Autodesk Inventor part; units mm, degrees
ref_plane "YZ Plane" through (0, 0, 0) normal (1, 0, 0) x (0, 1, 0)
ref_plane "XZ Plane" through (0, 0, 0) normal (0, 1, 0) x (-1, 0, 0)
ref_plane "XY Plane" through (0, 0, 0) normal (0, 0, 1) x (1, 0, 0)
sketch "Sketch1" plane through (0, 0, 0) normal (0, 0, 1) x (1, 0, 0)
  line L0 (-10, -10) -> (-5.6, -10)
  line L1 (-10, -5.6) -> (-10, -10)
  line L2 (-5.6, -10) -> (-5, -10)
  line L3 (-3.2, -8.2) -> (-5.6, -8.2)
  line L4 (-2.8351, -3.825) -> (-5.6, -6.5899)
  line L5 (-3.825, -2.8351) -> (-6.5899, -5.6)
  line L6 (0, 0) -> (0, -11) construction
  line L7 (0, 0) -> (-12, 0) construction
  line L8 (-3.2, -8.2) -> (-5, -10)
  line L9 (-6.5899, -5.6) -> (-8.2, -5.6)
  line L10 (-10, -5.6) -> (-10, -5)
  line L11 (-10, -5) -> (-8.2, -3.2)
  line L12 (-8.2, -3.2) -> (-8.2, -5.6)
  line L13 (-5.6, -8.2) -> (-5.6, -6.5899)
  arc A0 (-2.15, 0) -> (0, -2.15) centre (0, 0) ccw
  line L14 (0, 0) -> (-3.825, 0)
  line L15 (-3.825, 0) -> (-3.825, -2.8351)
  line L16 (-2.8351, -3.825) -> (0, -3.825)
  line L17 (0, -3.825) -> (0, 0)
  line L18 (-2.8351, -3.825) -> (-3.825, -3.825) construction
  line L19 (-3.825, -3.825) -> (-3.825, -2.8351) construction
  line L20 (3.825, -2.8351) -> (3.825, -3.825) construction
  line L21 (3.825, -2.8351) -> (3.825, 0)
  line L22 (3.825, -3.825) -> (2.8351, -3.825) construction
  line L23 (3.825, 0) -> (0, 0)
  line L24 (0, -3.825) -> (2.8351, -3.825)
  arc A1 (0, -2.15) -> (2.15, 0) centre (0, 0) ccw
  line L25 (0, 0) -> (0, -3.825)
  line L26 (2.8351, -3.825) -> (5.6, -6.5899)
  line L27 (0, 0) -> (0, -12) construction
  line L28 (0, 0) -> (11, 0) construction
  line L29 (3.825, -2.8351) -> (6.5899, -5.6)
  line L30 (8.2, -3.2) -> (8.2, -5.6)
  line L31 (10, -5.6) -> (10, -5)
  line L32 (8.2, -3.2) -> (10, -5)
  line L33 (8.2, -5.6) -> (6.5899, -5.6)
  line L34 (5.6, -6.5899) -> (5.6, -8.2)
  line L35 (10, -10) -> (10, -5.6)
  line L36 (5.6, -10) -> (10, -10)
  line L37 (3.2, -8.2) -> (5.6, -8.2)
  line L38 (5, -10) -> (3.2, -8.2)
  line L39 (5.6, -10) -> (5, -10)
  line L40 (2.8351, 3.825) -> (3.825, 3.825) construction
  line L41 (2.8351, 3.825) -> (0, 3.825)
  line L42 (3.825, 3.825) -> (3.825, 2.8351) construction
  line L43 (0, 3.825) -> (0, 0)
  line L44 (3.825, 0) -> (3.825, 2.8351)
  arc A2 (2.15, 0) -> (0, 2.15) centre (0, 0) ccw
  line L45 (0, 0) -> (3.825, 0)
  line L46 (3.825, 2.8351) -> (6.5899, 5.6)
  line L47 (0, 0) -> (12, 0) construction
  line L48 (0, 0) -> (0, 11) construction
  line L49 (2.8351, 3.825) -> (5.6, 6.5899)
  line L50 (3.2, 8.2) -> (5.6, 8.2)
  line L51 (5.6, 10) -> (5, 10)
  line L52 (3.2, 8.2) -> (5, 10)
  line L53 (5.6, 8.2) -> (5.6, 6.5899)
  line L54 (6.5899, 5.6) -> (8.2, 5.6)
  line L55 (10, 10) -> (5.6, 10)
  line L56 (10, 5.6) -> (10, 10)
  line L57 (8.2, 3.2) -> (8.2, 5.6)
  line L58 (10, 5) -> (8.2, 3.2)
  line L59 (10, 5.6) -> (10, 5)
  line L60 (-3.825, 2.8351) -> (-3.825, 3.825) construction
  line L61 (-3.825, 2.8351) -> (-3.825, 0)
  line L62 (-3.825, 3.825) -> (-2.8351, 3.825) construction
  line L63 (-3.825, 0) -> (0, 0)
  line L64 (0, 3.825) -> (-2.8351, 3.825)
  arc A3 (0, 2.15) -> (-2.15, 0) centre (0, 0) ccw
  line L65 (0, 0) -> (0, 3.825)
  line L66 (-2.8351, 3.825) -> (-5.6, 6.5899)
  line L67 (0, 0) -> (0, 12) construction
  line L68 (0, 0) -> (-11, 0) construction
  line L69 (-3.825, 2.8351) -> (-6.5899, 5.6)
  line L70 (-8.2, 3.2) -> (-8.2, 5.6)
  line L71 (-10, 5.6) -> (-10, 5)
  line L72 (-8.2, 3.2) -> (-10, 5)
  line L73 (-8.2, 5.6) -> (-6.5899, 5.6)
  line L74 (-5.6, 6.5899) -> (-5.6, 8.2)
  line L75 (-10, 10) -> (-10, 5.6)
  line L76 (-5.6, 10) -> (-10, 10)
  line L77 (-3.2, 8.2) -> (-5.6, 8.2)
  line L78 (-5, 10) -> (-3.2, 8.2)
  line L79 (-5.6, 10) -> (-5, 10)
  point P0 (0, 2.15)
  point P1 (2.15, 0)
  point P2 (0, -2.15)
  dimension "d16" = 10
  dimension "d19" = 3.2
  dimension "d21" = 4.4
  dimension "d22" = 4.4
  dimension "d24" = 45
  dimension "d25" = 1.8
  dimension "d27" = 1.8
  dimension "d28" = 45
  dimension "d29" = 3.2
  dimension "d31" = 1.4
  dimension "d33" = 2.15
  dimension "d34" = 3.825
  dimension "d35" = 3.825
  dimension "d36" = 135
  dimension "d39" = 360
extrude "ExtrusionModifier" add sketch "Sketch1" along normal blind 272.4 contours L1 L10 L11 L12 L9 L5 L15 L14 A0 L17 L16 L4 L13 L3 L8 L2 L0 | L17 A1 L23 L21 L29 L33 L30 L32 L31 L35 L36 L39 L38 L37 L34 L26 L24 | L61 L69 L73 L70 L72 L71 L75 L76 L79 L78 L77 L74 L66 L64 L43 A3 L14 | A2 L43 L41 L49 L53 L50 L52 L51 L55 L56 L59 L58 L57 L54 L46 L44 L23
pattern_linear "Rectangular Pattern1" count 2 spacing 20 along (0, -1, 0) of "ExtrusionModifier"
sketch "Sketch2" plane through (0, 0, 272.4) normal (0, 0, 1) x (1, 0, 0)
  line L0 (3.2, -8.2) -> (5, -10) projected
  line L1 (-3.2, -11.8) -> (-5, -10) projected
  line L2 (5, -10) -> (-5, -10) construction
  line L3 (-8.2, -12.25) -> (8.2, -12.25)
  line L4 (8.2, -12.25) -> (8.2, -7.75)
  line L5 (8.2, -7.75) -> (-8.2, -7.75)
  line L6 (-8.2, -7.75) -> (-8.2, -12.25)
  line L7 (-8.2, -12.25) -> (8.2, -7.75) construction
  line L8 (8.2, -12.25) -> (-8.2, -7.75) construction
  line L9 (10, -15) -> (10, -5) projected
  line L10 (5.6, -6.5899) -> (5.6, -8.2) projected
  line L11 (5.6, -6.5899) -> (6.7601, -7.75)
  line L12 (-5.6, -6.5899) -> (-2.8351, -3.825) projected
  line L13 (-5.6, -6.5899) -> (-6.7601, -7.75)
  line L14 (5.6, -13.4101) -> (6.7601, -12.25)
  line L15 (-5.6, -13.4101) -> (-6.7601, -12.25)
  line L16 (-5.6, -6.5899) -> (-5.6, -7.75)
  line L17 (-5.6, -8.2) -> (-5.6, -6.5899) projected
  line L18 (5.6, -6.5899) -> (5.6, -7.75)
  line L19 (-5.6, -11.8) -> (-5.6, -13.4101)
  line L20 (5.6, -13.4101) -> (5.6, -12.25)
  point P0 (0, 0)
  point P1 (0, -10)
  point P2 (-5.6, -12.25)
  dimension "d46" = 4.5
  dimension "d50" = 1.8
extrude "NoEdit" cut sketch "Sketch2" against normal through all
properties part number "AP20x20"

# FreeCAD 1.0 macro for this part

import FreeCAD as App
import Part
import Sketcher
Q = App.Units.Quantity

doc = App.newDocument("Part")
body = doc.addObject("PartDesign::Body", "Body")

# Sketch on XY plane
sketch1 = body.newObject("Sketcher::SketchObject", "Sketch")
sketch1.AttachmentSupport = (doc.getObject("XY_Plane"), [""])
sketch1.MapMode = "FlatFace"
sketch1.addGeometry(Part.LineSegment(App.Vector(-10, -10, 0), App.Vector(-5, -10, 0)), False)
sketch1.addGeometry(Part.LineSegment(App.Vector(-5, -10, 0), App.Vector(-3.2, -8.2, 0)), False)
sketch1.addGeometry(Part.LineSegment(App.Vector(-3.2, -8.2, 0), App.Vector(-5.6, -8.2, 0)), False)
sketch1.addGeometry(Part.LineSegment(App.Vector(-5.6, -8.2, 0), App.Vector(-5.6, -6.6, 0)), False)
sketch1.addGeometry(Part.LineSegment(App.Vector(-5.6, -6.6, 0), App.Vector(-2.8, -3.8, 0)), False)
sketch1.addGeometry(Part.LineSegment(App.Vector(-2.8, -3.8, 0), App.Vector(2.8, -3.8, 0)), False)
sketch1.addGeometry(Part.LineSegment(App.Vector(2.8, -3.8, 0), App.Vector(5.6, -6.6, 0)), False)
sketch1.addGeometry(Part.LineSegment(App.Vector(5.6, -6.6, 0), App.Vector(5.6, -8.2, 0)), False)
sketch1.addGeometry(Part.LineSegment(App.Vector(5.6, -8.2, 0), App.Vector(3.2, -8.2, 0)), False)
sketch1.addGeometry(Part.LineSegment(App.Vector(3.2, -8.2, 0), App.Vector(5, -10, 0)), False)
sketch1.addGeometry(Part.LineSegment(App.Vector(5, -10, 0), App.Vector(10, -10, 0)), False)
sketch1.addGeometry(Part.LineSegment(App.Vector(10, -10, 0), App.Vector(10, -5, 0)), False)
sketch1.addGeometry(Part.LineSegment(App.Vector(10, -5, 0), App.Vector(8.2, -3.2, 0)), False)
sketch1.addGeometry(Part.LineSegment(App.Vector(8.2, -3.2, 0), App.Vector(8.2, -5.6, 0)), False)
sketch1.addGeometry(Part.LineSegment(App.Vector(8.2, -5.6, 0), App.Vector(6.6, -5.6, 0)), False)
sketch1.addGeometry(Part.LineSegment(App.Vector(6.6, -5.6, 0), App.Vector(3.8, -2.8, 0)), False)
sketch1.addGeometry(Part.LineSegment(App.Vector(3.8, -2.8, 0), App.Vector(3.8, 2.8, 0)), False)
sketch1.addGeometry(Part.LineSegment(App.Vector(3.8, 2.8, 0), App.Vector(6.6, 5.6, 0)), False)
sketch1.addGeometry(Part.LineSegment(App.Vector(6.6, 5.6, 0), App.Vector(8.2, 5.6, 0)), False)
sketch1.addGeometry(Part.LineSegment(App.Vector(8.2, 5.6, 0), App.Vector(8.2, 3.2, 0)), False)
sketch1.addGeometry(Part.LineSegment(App.Vector(8.2, 3.2, 0), App.Vector(10, 5, 0)), False)
sketch1.addGeometry(Part.LineSegment(App.Vector(10, 5, 0), App.Vector(10, 10, 0)), False)
sketch1.addGeometry(Part.LineSegment(App.Vector(10, 10, 0), App.Vector(5, 10, 0)), False)
sketch1.addGeometry(Part.LineSegment(App.Vector(5, 10, 0), App.Vector(3.2, 8.2, 0)), False)
sketch1.addGeometry(Part.LineSegment(App.Vector(3.2, 8.2, 0), App.Vector(5.6, 8.2, 0)), False)
sketch1.addGeometry(Part.LineSegment(App.Vector(5.6, 8.2, 0), App.Vector(5.6, 6.6, 0)), False)
sketch1.addGeometry(Part.LineSegment(App.Vector(5.6, 6.6, 0), App.Vector(2.8, 3.8, 0)), False)
sketch1.addGeometry(Part.LineSegment(App.Vector(2.8, 3.8, 0), App.Vector(-2.8, 3.8, 0)), False)
sketch1.addGeometry(Part.LineSegment(App.Vector(-2.8, 3.8, 0), App.Vector(-5.6, 6.6, 0)), False)
sketch1.addGeometry(Part.LineSegment(App.Vector(-5.6, 6.6, 0), App.Vector(-5.6, 8.2, 0)), False)
sketch1.addGeometry(Part.LineSegment(App.Vector(-5.6, 8.2, 0), App.Vector(-3.2, 8.2, 0)), False)
sketch1.addGeometry(Part.LineSegment(App.Vector(-3.2, 8.2, 0), App.Vector(-5, 10, 0)), False)
sketch1.addGeometry(Part.LineSegment(App.Vector(-5, 10, 0), App.Vector(-10, 10, 0)), False)
sketch1.addGeometry(Part.LineSegment(App.Vector(-10, 10, 0), App.Vector(-10, 5, 0)), False)
sketch1.addGeometry(Part.LineSegment(App.Vector(-10, 5, 0), App.Vector(-8.2, 3.2, 0)), False)
sketch1.addGeometry(Part.LineSegment(App.Vector(-8.2, 3.2, 0), App.Vector(-8.2, 5.6, 0)), False)
sketch1.addGeometry(Part.LineSegment(App.Vector(-8.2, 5.6, 0), App.Vector(-6.6, 5.6, 0)), False)
sketch1.addGeometry(Part.LineSegment(App.Vector(-6.6, 5.6, 0), App.Vector(-3.8, 2.8, 0)), False)
sketch1.addGeometry(Part.LineSegment(App.Vector(-3.8, 2.8, 0), App.Vector(-3.8, -2.8, 0)), False)
sketch1.addGeometry(Part.LineSegment(App.Vector(-3.8, -2.8, 0), App.Vector(-6.6, -5.6, 0)), False)
sketch1.addGeometry(Part.LineSegment(App.Vector(-6.6, -5.6, 0), App.Vector(-8.2, -5.6, 0)), False)
sketch1.addGeometry(Part.LineSegment(App.Vector(-8.2, -5.6, 0), App.Vector(-8.2, -3.2, 0)), False)
sketch1.addGeometry(Part.LineSegment(App.Vector(-8.2, -3.2, 0), App.Vector(-10, -5, 0)), False)
sketch1.addGeometry(Part.LineSegment(App.Vector(-10, -5, 0), App.Vector(-10, -10, 0)), False)
sketch1.addGeometry(Part.Circle(App.Vector(0, 0, 0), App.Vector(0, 0, 1), 2.1), False)
sketch1.addConstraint(Sketcher.Constraint("Coincident", 0, 2, 1, 1))
sketch1.addConstraint(Sketcher.Constraint("Coincident", 1, 2, 2, 1))
sketch1.addConstraint(Sketcher.Constraint("Coincident", 2, 2, 3, 1))
sketch1.addConstraint(Sketcher.Constraint("Coincident", 3, 2, 4, 1))
sketch1.addConstraint(Sketcher.Constraint("Coincident", 4, 2, 5, 1))
sketch1.addConstraint(Sketcher.Constraint("Coincident", 5, 2, 6, 1))
sketch1.addConstraint(Sketcher.Constraint("Coincident", 6, 2, 7, 1))
sketch1.addConstraint(Sketcher.Constraint("Coincident", 7, 2, 8, 1))
sketch1.addConstraint(Sketcher.Constraint("Coincident", 8, 2, 9, 1))
sketch1.addConstraint(Sketcher.Constraint("Coincident", 9, 2, 10, 1))
sketch1.addConstraint(Sketcher.Constraint("Coincident", 10, 2, 11, 1))
sketch1.addConstraint(Sketcher.Constraint("Coincident", 11, 2, 12, 1))
sketch1.addConstraint(Sketcher.Constraint("Coincident", 12, 2, 13, 1))
sketch1.addConstraint(Sketcher.Constraint("Coincident", 13, 2, 14, 1))
sketch1.addConstraint(Sketcher.Constraint("Coincident", 14, 2, 15, 1))
sketch1.addConstraint(Sketcher.Constraint("Coincident", 15, 2, 16, 1))
sketch1.addConstraint(Sketcher.Constraint("Coincident", 16, 2, 17, 1))
sketch1.addConstraint(Sketcher.Constraint("Coincident", 17, 2, 18, 1))
sketch1.addConstraint(Sketcher.Constraint("Coincident", 18, 2, 19, 1))
sketch1.addConstraint(Sketcher.Constraint("Coincident", 19, 2, 20, 1))
sketch1.addConstraint(Sketcher.Constraint("Coincident", 20, 2, 21, 1))
sketch1.addConstraint(Sketcher.Constraint("Coincident", 21, 2, 22, 1))
sketch1.addConstraint(Sketcher.Constraint("Coincident", 22, 2, 23, 1))
sketch1.addConstraint(Sketcher.Constraint("Coincident", 23, 2, 24, 1))
sketch1.addConstraint(Sketcher.Constraint("Coincident", 24, 2, 25, 1))
sketch1.addConstraint(Sketcher.Constraint("Coincident", 25, 2, 26, 1))
sketch1.addConstraint(Sketcher.Constraint("Coincident", 26, 2, 27, 1))
sketch1.addConstraint(Sketcher.Constraint("Coincident", 27, 2, 28, 1))
sketch1.addConstraint(Sketcher.Constraint("Coincident", 28, 2, 29, 1))
sketch1.addConstraint(Sketcher.Constraint("Coincident", 29, 2, 30, 1))
sketch1.addConstraint(Sketcher.Constraint("Coincident", 30, 2, 31, 1))
sketch1.addConstraint(Sketcher.Constraint("Coincident", 31, 2, 32, 1))
sketch1.addConstraint(Sketcher.Constraint("Coincident", 32, 2, 33, 1))
sketch1.addConstraint(Sketcher.Constraint("Coincident", 33, 2, 34, 1))
sketch1.addConstraint(Sketcher.Constraint("Coincident", 34, 2, 35, 1))
sketch1.addConstraint(Sketcher.Constraint("Coincident", 35, 2, 36, 1))
sketch1.addConstraint(Sketcher.Constraint("Coincident", 36, 2, 37, 1))
sketch1.addConstraint(Sketcher.Constraint("Coincident", 37, 2, 38, 1))
sketch1.addConstraint(Sketcher.Constraint("Coincident", 38, 2, 39, 1))
sketch1.addConstraint(Sketcher.Constraint("Coincident", 39, 2, 40, 1))
sketch1.addConstraint(Sketcher.Constraint("Coincident", 40, 2, 41, 1))
sketch1.addConstraint(Sketcher.Constraint("Coincident", 41, 2, 42, 1))
sketch1.addConstraint(Sketcher.Constraint("Coincident", 42, 2, 43, 1))
sketch1.addConstraint(Sketcher.Constraint("Coincident", 43, 2, 0, 1))
sketch1.addConstraint(Sketcher.Constraint("Horizontal", 0))
sketch1.addConstraint(Sketcher.Constraint("Horizontal", 2))
sketch1.addConstraint(Sketcher.Constraint("Vertical", 3))
sketch1.addConstraint(Sketcher.Constraint("Horizontal", 5))
sketch1.addConstraint(Sketcher.Constraint("Vertical", 7))
sketch1.addConstraint(Sketcher.Constraint("Horizontal", 8))
sketch1.addConstraint(Sketcher.Constraint("Horizontal", 10))
sketch1.addConstraint(Sketcher.Constraint("Vertical", 11))
sketch1.addConstraint(Sketcher.Constraint("Vertical", 13))
sketch1.addConstraint(Sketcher.Constraint("Horizontal", 14))
sketch1.addConstraint(Sketcher.Constraint("Vertical", 16))
sketch1.addConstraint(Sketcher.Constraint("Horizontal", 18))
sketch1.addConstraint(Sketcher.Constraint("Vertical", 19))
sketch1.addConstraint(Sketcher.Constraint("Vertical", 21))
sketch1.addConstraint(Sketcher.Constraint("Horizontal", 22))
sketch1.addConstraint(Sketcher.Constraint("Horizontal", 24))
sketch1.addConstraint(Sketcher.Constraint("Vertical", 25))
sketch1.addConstraint(Sketcher.Constraint("Horizontal", 27))
sketch1.addConstraint(Sketcher.Constraint("Vertical", 29))
sketch1.addConstraint(Sketcher.Constraint("Horizontal", 30))
sketch1.addConstraint(Sketcher.Constraint("Horizontal", 32))
sketch1.addConstraint(Sketcher.Constraint("Vertical", 33))
sketch1.addConstraint(Sketcher.Constraint("Vertical", 35))
sketch1.addConstraint(Sketcher.Constraint("Horizontal", 36))
sketch1.addConstraint(Sketcher.Constraint("Vertical", 38))
sketch1.addConstraint(Sketcher.Constraint("Horizontal", 40))
sketch1.addConstraint(Sketcher.Constraint("Vertical", 41))
sketch1.addConstraint(Sketcher.Constraint("Vertical", 43))
sketch1.addConstraint(Sketcher.Constraint("Coincident", 44, 3, -1, 1))
sketch1.addConstraint(Sketcher.Constraint("Symmetric", 0, 2, 22, 2, -1, 1))
sketch1.addConstraint(Sketcher.Constraint("Symmetric", 1, 2, 23, 2, -1, 1))
sketch1.addConstraint(Sketcher.Constraint("Symmetric", 3, 2, 25, 2, -1, 1))
sketch1.addConstraint(Sketcher.Constraint("Symmetric", 4, 2, 26, 2, -1, 1))
sketch1.addConstraint(Sketcher.Constraint("Symmetric", 6, 2, 28, 2, -1, 1))
sketch1.addConstraint(Sketcher.Constraint("Symmetric", 8, 2, 30, 2, -1, 1))
sketch1.addConstraint(Sketcher.Constraint("Symmetric", 9, 2, 31, 2, -1, 1))
sketch1.addConstraint(Sketcher.Constraint("Symmetric", 11, 2, 33, 2, -1, 1))
sketch1.addConstraint(Sketcher.Constraint("Symmetric", 12, 2, 34, 2, -1, 1))
sketch1.addConstraint(Sketcher.Constraint("Symmetric", 14, 2, 36, 2, -1, 1))
sketch1.addConstraint(Sketcher.Constraint("Symmetric", 15, 2, 37, 2, -1, 1))
sketch1.addConstraint(Sketcher.Constraint("Symmetric", 17, 2, 39, 2, -1, 1))
sketch1.addConstraint(Sketcher.Constraint("Symmetric", 19, 2, 41, 2, -1, 1))
sketch1.addConstraint(Sketcher.Constraint("Symmetric", 20, 2, 42, 2, -1, 1))
sketch1.addConstraint(Sketcher.Constraint("Symmetric", 3, 2, 6, 2, -2))
sketch1.addConstraint(Sketcher.Constraint("Symmetric", 1, 2, 8, 2, -2))
sketch1.addConstraint(Sketcher.Constraint("Symmetric", 0, 2, 9, 2, -2))
sketch1.addConstraint(Sketcher.Constraint("Symmetric", 20, 2, 33, 2, -2))
sketch1.addConstraint(Sketcher.Constraint("Symmetric", 19, 2, 34, 2, -2))
sketch1.addConstraint(Sketcher.Constraint("Symmetric", 17, 2, 36, 2, -2))
sketch1.addConstraint(Sketcher.Constraint("Parallel", 1, 4))
sketch1.addConstraint(Sketcher.Constraint("Perpendicular", 4, 6))
sketch1.addConstraint(Sketcher.Constraint("Parallel", 6, 9))
sketch1.addConstraint(Sketcher.Constraint("Parallel", 9, 12))
sketch1.addConstraint(Sketcher.Constraint("Parallel", 12, 15))
sketch1.addConstraint(Sketcher.Constraint("Perpendicular", 15, 17))
sketch1.addConstraint(Sketcher.Constraint("Perpendicular", 26, 28))
sketch1.addConstraint(Sketcher.Constraint("Perpendicular", 37, 39))
sketch1.addConstraint(Sketcher.Constraint("Equal", 40, 3))
sketch1.addConstraint(Sketcher.Constraint("Equal", 32, 11))
sketch1.addConstraint(Sketcher.Constraint("Equal", 30, 13))
sketch1.addConstraint(Sketcher.Constraint("Equal", 27, 16))
sketch1.addConstraint(Sketcher.Constraint("Equal", 9, 12))
sketch1.addConstraint(Sketcher.Constraint("Equal", 6, 15))
sketch1.addConstraint(Sketcher.Constraint("Diameter", 44, Q("4.3 mm")))
sketch1.addConstraint(Sketcher.Constraint("DistanceY", 0, 2, -1, 1, Q("10 mm")))
sketch1.addConstraint(Sketcher.Constraint("DistanceX", 1, 2, -1, 1, Q("3.2 mm")))
sketch1.addConstraint(Sketcher.Constraint("DistanceX", 0, 2, 1, 2, Q("1.8 mm")))
sketch1.addConstraint(Sketcher.Constraint("DistanceX", 7, 2, 10, 2, Q("4.4 mm")))
sketch1.addConstraint(Sketcher.Constraint("DistanceY", 4, 2, -1, 1, Q("3.825 mm")))
sketch1.addConstraint(Sketcher.Constraint("DistanceX", 14, 2, 14, 1, Q("1.61 mm")))
pad1 = body.newObject("PartDesign::Pad", "Pad")
pad1.Profile = sketch1
pad1.Length = 272.4
doc.recompute()

linearpattern = body.newObject("PartDesign::LinearPattern", "LinearPattern")
linearpattern.Originals = [pad1]
linearpattern.Direction = (doc.getObject("Y_Axis"), [""])
linearpattern.Mode = "offset"
linearpattern.Offset = 20
linearpattern.Occurrences = 2
linearpattern.Reversed = True
body.Tip = linearpattern

# Sketch on XY plane
sketch2 = body.newObject("Sketcher::SketchObject", "Sketch001")
sketch2.AttachmentSupport = (doc.getObject("XY_Plane"), [""])
sketch2.MapMode = "FlatFace"
sketch2.AttachmentOffset = App.Placement(App.Vector(0, 0, 272.4), App.Rotation())
sketch2.addGeometry(Part.LineSegment(App.Vector(-8.2, -7.8, 0), App.Vector(-8.2, -12.2, 0)), False)
sketch2.addGeometry(Part.LineSegment(App.Vector(-8.2, -12.2, 0), App.Vector(-6.8, -12.2, 0)), False)
sketch2.addGeometry(Part.LineSegment(App.Vector(-6.8, -12.2, 0), App.Vector(-5.6, -13.4, 0)), False)
sketch2.addGeometry(Part.LineSegment(App.Vector(-5.6, -13.4, 0), App.Vector(-5.6, -12.2, 0)), False)
sketch2.addGeometry(Part.LineSegment(App.Vector(-5.6, -12.2, 0), App.Vector(5.6, -12.2, 0)), False)
sketch2.addGeometry(Part.LineSegment(App.Vector(5.6, -12.2, 0), App.Vector(5.6, -13.4, 0)), False)
sketch2.addGeometry(Part.LineSegment(App.Vector(5.6, -13.4, 0), App.Vector(6.8, -12.2, 0)), False)
sketch2.addGeometry(Part.LineSegment(App.Vector(6.8, -12.2, 0), App.Vector(8.2, -12.2, 0)), False)
sketch2.addGeometry(Part.LineSegment(App.Vector(8.2, -12.2, 0), App.Vector(8.2, -7.8, 0)), False)
sketch2.addGeometry(Part.LineSegment(App.Vector(8.2, -7.8, 0), App.Vector(6.8, -7.8, 0)), False)
sketch2.addGeometry(Part.LineSegment(App.Vector(6.8, -7.8, 0), App.Vector(5.6, -6.6, 0)), False)
sketch2.addGeometry(Part.LineSegment(App.Vector(5.6, -6.6, 0), App.Vector(5.6, -7.8, 0)), False)
sketch2.addGeometry(Part.LineSegment(App.Vector(5.6, -7.8, 0), App.Vector(-5.6, -7.8, 0)), False)
sketch2.addGeometry(Part.LineSegment(App.Vector(-5.6, -7.8, 0), App.Vector(-5.6, -6.6, 0)), False)
sketch2.addGeometry(Part.LineSegment(App.Vector(-5.6, -6.6, 0), App.Vector(-6.8, -7.8, 0)), False)
sketch2.addGeometry(Part.LineSegment(App.Vector(-6.8, -7.8, 0), App.Vector(-8.2, -7.8, 0)), False)
sketch2.addConstraint(Sketcher.Constraint("Coincident", 0, 2, 1, 1))
sketch2.addConstraint(Sketcher.Constraint("Coincident", 1, 2, 2, 1))
sketch2.addConstraint(Sketcher.Constraint("Coincident", 2, 2, 3, 1))
sketch2.addConstraint(Sketcher.Constraint("Coincident", 3, 2, 4, 1))
sketch2.addConstraint(Sketcher.Constraint("Coincident", 4, 2, 5, 1))
sketch2.addConstraint(Sketcher.Constraint("Coincident", 5, 2, 6, 1))
sketch2.addConstraint(Sketcher.Constraint("Coincident", 6, 2, 7, 1))
sketch2.addConstraint(Sketcher.Constraint("Coincident", 7, 2, 8, 1))
sketch2.addConstraint(Sketcher.Constraint("Coincident", 8, 2, 9, 1))
sketch2.addConstraint(Sketcher.Constraint("Coincident", 9, 2, 10, 1))
sketch2.addConstraint(Sketcher.Constraint("Coincident", 10, 2, 11, 1))
sketch2.addConstraint(Sketcher.Constraint("Coincident", 11, 2, 12, 1))
sketch2.addConstraint(Sketcher.Constraint("Coincident", 12, 2, 13, 1))
sketch2.addConstraint(Sketcher.Constraint("Coincident", 13, 2, 14, 1))
sketch2.addConstraint(Sketcher.Constraint("Coincident", 14, 2, 15, 1))
sketch2.addConstraint(Sketcher.Constraint("Coincident", 15, 2, 0, 1))
sketch2.addConstraint(Sketcher.Constraint("Vertical", 0))
sketch2.addConstraint(Sketcher.Constraint("Horizontal", 1))
sketch2.addConstraint(Sketcher.Constraint("Vertical", 3))
sketch2.addConstraint(Sketcher.Constraint("Horizontal", 4))
sketch2.addConstraint(Sketcher.Constraint("Vertical", 5))
sketch2.addConstraint(Sketcher.Constraint("Horizontal", 7))
sketch2.addConstraint(Sketcher.Constraint("Vertical", 8))
sketch2.addConstraint(Sketcher.Constraint("Horizontal", 9))
sketch2.addConstraint(Sketcher.Constraint("Vertical", 11))
sketch2.addConstraint(Sketcher.Constraint("Horizontal", 12))
sketch2.addConstraint(Sketcher.Constraint("Vertical", 13))
sketch2.addConstraint(Sketcher.Constraint("Horizontal", 15))
sketch2.addConstraint(Sketcher.Constraint("Symmetric", 2, 2, 5, 2, -2))
sketch2.addConstraint(Sketcher.Constraint("Symmetric", 1, 2, 6, 2, -2))
sketch2.addConstraint(Sketcher.Constraint("Symmetric", 10, 2, 13, 2, -2))
sketch2.addConstraint(Sketcher.Constraint("Symmetric", 9, 2, 14, 2, -2))
sketch2.addConstraint(Sketcher.Constraint("Perpendicular", 2, 6))
sketch2.addConstraint(Sketcher.Constraint("Perpendicular", 6, 10))
sketch2.addConstraint(Sketcher.Constraint("Horizontal", 1, 2, 3, 2))
sketch2.addConstraint(Sketcher.Constraint("Horizontal", 9, 2, 11, 2))
sketch2.addConstraint(Sketcher.Constraint("Vertical", 6, 2, 9, 2))
sketch2.addConstraint(Sketcher.Constraint("Vertical", 5, 2, 10, 2))
sketch2.addConstraint(Sketcher.Constraint("Equal", 1, 7))
sketch2.addConstraint(Sketcher.Constraint("DistanceY", 0, 2, 0, 1, Q("4.5 mm")))
sketch2.addConstraint(Sketcher.Constraint("DistanceX", 4, 1, 4, 2, Q("11.2 mm")))
sketch2.addConstraint(Sketcher.Constraint("DistanceX", 1, 1, 1, 2, Q("1.44 mm")))
sketch2.addConstraint(Sketcher.Constraint("DistanceY", 3, 1, 3, 2, Q("1.16 mm")))
sketch2.addConstraint(Sketcher.Constraint("DistanceY", 0, 2, -1, 1, Q("12.25 mm")))
pocket1 = body.newObject("PartDesign::Pocket", "Pocket")
pocket1.Profile = sketch2
pocket1.Type = "ThroughAll"

doc.recompute()
